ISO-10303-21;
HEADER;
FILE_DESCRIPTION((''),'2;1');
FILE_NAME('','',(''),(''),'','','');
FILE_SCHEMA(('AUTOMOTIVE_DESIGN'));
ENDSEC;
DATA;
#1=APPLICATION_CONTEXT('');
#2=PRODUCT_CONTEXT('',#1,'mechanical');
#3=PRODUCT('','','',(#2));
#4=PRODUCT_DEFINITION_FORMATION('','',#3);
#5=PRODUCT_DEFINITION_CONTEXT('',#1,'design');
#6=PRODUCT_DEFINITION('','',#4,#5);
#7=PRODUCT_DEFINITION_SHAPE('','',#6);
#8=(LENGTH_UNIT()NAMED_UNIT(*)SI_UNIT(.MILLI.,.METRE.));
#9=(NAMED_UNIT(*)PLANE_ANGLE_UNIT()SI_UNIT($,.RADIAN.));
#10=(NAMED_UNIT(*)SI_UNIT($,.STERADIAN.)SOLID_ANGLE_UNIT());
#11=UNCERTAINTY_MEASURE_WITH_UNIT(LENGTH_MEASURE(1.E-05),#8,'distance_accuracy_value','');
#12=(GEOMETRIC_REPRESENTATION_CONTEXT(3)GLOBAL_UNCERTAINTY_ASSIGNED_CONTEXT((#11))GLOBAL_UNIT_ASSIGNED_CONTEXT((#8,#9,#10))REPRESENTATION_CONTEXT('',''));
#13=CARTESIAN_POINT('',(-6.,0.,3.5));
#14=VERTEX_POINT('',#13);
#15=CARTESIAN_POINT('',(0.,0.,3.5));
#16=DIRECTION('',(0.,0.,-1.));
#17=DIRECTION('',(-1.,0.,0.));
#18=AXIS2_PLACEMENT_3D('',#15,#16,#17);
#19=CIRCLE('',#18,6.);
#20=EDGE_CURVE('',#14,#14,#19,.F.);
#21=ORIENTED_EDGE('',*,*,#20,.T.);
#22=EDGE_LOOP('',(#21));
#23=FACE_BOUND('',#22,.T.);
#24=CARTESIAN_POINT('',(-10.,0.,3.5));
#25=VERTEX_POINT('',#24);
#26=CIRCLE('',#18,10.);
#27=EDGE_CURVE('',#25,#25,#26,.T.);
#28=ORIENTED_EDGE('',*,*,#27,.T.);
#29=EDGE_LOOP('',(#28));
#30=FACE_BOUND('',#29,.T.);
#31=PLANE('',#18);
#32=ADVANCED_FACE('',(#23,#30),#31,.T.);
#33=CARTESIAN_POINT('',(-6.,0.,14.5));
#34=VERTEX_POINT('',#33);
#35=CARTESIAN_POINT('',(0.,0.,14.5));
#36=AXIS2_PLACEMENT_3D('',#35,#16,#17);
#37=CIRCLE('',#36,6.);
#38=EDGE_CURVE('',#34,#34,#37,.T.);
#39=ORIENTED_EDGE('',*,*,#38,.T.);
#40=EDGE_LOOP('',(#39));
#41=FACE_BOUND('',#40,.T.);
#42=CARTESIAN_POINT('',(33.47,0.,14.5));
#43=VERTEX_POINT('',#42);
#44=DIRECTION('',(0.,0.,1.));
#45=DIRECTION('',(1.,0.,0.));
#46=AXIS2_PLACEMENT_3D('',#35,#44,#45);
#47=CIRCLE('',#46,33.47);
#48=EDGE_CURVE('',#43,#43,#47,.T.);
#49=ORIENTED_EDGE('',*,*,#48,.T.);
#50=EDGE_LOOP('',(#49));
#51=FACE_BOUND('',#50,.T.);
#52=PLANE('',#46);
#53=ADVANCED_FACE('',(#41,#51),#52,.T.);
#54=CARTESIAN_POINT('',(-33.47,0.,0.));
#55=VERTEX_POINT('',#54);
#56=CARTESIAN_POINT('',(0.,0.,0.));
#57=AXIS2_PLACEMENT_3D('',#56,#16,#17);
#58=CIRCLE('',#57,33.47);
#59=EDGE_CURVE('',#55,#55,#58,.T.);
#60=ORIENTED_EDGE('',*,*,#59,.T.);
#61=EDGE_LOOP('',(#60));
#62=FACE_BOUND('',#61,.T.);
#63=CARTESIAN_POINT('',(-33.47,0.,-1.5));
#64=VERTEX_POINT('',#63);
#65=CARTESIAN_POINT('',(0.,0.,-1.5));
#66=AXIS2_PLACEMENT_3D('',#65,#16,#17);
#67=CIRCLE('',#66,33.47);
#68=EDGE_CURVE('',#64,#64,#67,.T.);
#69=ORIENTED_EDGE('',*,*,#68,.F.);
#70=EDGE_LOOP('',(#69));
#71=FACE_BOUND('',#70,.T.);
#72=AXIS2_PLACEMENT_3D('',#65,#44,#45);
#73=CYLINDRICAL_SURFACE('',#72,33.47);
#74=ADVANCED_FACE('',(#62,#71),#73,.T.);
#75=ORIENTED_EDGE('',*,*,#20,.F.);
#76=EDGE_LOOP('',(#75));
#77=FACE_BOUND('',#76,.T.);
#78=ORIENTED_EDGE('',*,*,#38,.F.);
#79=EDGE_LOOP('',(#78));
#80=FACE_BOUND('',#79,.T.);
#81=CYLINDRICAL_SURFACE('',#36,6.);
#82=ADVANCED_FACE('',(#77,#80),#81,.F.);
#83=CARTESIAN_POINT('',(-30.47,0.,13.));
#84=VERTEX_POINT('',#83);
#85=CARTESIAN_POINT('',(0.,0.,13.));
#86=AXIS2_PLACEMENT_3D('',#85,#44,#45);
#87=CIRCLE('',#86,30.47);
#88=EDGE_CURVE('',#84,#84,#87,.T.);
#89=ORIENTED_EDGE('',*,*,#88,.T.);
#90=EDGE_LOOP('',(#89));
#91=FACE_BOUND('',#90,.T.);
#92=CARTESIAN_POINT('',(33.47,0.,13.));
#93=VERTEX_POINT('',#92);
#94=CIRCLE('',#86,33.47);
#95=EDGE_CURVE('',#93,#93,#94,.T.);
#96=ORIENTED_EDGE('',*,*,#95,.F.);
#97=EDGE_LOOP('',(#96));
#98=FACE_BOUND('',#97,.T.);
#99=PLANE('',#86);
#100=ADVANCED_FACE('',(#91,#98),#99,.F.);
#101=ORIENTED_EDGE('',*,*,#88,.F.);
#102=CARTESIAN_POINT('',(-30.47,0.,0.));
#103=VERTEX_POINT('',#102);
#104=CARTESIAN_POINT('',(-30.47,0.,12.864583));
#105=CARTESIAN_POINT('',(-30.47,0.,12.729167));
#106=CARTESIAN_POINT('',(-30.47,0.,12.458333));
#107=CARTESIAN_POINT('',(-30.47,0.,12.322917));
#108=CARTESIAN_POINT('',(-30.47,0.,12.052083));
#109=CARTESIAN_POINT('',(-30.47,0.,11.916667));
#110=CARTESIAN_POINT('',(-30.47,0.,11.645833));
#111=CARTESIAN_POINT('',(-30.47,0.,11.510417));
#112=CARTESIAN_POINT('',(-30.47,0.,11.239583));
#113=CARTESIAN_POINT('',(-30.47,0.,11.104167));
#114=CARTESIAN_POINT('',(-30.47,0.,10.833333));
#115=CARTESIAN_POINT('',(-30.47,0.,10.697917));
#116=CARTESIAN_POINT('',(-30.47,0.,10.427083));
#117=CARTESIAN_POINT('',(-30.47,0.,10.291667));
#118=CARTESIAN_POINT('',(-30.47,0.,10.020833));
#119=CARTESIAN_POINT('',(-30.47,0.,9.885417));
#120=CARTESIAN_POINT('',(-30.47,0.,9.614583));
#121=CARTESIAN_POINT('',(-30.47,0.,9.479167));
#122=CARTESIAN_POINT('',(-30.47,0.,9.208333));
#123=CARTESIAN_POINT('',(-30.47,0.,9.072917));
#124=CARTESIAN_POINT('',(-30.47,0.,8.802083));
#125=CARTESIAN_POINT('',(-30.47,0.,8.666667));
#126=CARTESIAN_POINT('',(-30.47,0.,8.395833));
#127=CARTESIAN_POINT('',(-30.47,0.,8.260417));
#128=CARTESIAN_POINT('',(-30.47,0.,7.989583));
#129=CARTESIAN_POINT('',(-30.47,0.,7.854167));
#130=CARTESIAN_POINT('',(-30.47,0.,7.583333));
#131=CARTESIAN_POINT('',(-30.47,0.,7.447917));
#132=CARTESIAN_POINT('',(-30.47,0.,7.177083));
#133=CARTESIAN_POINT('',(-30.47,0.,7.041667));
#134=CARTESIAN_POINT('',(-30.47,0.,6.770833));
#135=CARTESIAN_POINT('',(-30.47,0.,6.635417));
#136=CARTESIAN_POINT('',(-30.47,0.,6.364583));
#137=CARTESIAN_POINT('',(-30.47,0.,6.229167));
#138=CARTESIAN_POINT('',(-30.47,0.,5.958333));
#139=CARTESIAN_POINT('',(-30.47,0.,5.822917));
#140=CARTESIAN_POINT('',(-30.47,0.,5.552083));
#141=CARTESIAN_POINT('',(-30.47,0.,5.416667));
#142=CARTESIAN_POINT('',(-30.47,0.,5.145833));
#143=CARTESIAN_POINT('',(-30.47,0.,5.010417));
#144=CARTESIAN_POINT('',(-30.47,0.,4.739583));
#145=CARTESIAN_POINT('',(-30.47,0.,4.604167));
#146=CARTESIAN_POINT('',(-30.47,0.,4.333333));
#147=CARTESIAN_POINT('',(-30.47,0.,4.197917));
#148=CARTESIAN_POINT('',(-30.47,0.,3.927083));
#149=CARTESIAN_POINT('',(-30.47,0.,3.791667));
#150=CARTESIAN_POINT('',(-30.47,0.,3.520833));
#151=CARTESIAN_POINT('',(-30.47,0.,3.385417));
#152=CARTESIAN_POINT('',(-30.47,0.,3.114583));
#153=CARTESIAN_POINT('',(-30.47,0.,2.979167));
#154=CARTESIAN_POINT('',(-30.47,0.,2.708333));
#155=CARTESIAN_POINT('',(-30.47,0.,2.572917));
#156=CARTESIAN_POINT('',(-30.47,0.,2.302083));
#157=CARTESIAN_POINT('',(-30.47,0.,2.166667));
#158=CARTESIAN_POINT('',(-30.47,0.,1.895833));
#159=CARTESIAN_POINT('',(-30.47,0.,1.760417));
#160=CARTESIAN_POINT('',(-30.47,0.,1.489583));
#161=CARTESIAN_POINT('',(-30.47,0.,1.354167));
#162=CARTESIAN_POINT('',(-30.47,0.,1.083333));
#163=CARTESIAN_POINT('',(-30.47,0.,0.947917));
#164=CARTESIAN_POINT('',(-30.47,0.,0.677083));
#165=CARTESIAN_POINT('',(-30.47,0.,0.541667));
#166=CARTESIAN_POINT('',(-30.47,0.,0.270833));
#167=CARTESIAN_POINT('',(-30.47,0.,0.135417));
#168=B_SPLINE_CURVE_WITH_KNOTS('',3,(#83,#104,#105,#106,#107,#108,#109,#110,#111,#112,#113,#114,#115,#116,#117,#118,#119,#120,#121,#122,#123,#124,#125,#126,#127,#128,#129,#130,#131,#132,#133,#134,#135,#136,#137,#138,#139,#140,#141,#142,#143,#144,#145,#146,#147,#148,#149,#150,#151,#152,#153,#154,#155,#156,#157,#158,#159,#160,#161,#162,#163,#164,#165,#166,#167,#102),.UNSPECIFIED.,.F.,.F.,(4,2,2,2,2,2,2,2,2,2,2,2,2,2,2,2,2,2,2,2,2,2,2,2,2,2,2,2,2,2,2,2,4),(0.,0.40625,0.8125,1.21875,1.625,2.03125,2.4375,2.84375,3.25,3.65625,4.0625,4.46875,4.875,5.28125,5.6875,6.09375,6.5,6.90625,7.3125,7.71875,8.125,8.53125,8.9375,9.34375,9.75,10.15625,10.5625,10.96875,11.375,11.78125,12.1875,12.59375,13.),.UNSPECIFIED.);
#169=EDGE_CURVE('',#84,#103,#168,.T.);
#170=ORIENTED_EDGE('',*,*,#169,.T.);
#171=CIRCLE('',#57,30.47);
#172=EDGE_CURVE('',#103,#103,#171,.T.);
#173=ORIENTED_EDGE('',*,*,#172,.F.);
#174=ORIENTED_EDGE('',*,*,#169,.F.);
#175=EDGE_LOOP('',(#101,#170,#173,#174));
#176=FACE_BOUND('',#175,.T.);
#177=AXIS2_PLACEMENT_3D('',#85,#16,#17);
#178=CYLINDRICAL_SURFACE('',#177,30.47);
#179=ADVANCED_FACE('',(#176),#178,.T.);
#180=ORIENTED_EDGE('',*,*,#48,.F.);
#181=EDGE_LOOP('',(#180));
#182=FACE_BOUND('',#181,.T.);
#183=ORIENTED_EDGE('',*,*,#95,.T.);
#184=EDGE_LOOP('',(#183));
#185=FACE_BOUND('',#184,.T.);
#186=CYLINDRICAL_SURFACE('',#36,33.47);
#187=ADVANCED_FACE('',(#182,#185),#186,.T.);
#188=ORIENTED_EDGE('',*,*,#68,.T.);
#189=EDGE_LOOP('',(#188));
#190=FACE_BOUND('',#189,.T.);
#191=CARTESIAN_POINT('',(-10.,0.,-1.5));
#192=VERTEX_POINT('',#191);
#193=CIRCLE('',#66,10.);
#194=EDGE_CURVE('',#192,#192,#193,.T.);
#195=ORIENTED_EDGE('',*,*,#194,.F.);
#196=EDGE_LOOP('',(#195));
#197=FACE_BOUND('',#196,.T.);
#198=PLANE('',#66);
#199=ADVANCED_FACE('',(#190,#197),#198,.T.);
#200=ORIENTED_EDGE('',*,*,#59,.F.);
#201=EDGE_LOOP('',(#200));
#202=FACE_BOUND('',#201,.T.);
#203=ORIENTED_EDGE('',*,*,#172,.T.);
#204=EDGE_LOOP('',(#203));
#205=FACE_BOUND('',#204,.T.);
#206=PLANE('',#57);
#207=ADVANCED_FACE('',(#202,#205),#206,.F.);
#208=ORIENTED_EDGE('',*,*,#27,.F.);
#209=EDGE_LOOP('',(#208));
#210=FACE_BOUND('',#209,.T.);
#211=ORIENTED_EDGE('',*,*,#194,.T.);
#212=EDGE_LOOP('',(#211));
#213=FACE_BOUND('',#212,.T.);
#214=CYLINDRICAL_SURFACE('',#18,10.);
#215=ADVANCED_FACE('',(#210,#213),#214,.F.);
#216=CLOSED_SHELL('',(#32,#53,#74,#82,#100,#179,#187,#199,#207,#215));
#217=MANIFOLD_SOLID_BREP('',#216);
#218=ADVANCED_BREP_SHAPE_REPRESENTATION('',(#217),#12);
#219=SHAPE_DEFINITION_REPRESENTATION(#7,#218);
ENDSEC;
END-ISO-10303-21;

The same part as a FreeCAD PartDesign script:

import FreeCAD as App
import Part
import Sketcher
from FreeCAD import Vector
Q = App.Units.Quantity

doc = App.newDocument("Part")
body = doc.addObject("PartDesign::Body", "Body")

sketch1 = body.newObject("Sketcher::SketchObject", "Sketch")
sketch1.AttachmentSupport = (doc.getObject("XY_Plane"), [""])
sketch1.MapMode = "FlatFace"
sketch1.addGeometry(Part.Circle(Vector(0, 0, 0), Vector(0, 0, 1), 30), False)
sketch1.addConstraint([
    Sketcher.Constraint("Coincident", 0, 3, -1, 1),
    Sketcher.Constraint("Diameter", 0, Q("60.94 mm")),
])
pad1 = body.newObject("PartDesign::Pad", "Pad")
pad1.Profile = sketch1
pad1.Length = 13

sketch2 = body.newObject("Sketcher::SketchObject", "Sketch001")
sketch2.AttachmentSupport = (doc.getObject("XY_Plane"), [""])
sketch2.MapMode = "FlatFace"
sketch2.AttachmentOffset = App.Placement(Vector(0, 0, 13), App.Rotation())
sketch2.addGeometry(Part.Circle(Vector(0, 0, 0), Vector(0, 0, 1), 33), False)
sketch2.addConstraint([
    Sketcher.Constraint("Coincident", 0, 3, -1, 1),
    Sketcher.Constraint("Diameter", 0, Q("66.94 mm")),
])
pad2 = body.newObject("PartDesign::Pad", "Pad001")
pad2.Profile = sketch2
pad2.Length = 1.5

sketch3 = body.newObject("Sketcher::SketchObject", "Sketch002")
sketch3.AttachmentSupport = (doc.getObject("XY_Plane"), [""])
sketch3.MapMode = "FlatFace"
sketch3.AttachmentOffset = App.Placement(Vector(0, 0, -1.5), App.Rotation())
sketch3.addGeometry(Part.Circle(Vector(0, 0, 0), Vector(0, 0, 1), 33), False)
sketch3.addConstraint([
    Sketcher.Constraint("Coincident", 0, 3, -1, 1),
    Sketcher.Constraint("Diameter", 0, Q("66.94 mm")),
])
pad3 = body.newObject("PartDesign::Pad", "Pad002")
pad3.Profile = sketch3
pad3.Length = 1.5

sketch4 = body.newObject("Sketcher::SketchObject", "Sketch003")
sketch4.AttachmentSupport = (doc.getObject("XY_Plane"), [""])
sketch4.MapMode = "FlatFace"
sketch4.AttachmentOffset = App.Placement(Vector(0, 0, -1.5), App.Rotation())
sketch4.addGeometry(Part.Circle(Vector(0, 0, 0), Vector(0, 0, 1), 6), False)
sketch4.addConstraint([
    Sketcher.Constraint("Coincident", 0, 3, -1, 1),
    Sketcher.Constraint("Diameter", 0, Q("12 mm")),
])
pocket1 = body.newObject("PartDesign::Pocket", "Pocket")
pocket1.Profile = sketch4
pocket1.Type = "ThroughAll"
pocket1.Reversed = True

sketch5 = body.newObject("Sketcher::SketchObject", "Sketch004")
sketch5.AttachmentSupport = (doc.getObject("XY_Plane"), [""])
sketch5.MapMode = "FlatFace"
sketch5.AttachmentOffset = App.Placement(Vector(0, 0, -1.5), App.Rotation())
sketch5.addGeometry(Part.Circle(Vector(0, 0, 0), Vector(0, 0, 1), 10), False)
sketch5.addConstraint([
    Sketcher.Constraint("Coincident", 0, 3, -1, 1),
    Sketcher.Constraint("Diameter", 0, Q("20 mm")),
])
pocket2 = body.newObject("PartDesign::Pocket", "Pocket001")
pocket2.Profile = sketch5
pocket2.Length = 5
pocket2.Reversed = True

doc.recompute()
